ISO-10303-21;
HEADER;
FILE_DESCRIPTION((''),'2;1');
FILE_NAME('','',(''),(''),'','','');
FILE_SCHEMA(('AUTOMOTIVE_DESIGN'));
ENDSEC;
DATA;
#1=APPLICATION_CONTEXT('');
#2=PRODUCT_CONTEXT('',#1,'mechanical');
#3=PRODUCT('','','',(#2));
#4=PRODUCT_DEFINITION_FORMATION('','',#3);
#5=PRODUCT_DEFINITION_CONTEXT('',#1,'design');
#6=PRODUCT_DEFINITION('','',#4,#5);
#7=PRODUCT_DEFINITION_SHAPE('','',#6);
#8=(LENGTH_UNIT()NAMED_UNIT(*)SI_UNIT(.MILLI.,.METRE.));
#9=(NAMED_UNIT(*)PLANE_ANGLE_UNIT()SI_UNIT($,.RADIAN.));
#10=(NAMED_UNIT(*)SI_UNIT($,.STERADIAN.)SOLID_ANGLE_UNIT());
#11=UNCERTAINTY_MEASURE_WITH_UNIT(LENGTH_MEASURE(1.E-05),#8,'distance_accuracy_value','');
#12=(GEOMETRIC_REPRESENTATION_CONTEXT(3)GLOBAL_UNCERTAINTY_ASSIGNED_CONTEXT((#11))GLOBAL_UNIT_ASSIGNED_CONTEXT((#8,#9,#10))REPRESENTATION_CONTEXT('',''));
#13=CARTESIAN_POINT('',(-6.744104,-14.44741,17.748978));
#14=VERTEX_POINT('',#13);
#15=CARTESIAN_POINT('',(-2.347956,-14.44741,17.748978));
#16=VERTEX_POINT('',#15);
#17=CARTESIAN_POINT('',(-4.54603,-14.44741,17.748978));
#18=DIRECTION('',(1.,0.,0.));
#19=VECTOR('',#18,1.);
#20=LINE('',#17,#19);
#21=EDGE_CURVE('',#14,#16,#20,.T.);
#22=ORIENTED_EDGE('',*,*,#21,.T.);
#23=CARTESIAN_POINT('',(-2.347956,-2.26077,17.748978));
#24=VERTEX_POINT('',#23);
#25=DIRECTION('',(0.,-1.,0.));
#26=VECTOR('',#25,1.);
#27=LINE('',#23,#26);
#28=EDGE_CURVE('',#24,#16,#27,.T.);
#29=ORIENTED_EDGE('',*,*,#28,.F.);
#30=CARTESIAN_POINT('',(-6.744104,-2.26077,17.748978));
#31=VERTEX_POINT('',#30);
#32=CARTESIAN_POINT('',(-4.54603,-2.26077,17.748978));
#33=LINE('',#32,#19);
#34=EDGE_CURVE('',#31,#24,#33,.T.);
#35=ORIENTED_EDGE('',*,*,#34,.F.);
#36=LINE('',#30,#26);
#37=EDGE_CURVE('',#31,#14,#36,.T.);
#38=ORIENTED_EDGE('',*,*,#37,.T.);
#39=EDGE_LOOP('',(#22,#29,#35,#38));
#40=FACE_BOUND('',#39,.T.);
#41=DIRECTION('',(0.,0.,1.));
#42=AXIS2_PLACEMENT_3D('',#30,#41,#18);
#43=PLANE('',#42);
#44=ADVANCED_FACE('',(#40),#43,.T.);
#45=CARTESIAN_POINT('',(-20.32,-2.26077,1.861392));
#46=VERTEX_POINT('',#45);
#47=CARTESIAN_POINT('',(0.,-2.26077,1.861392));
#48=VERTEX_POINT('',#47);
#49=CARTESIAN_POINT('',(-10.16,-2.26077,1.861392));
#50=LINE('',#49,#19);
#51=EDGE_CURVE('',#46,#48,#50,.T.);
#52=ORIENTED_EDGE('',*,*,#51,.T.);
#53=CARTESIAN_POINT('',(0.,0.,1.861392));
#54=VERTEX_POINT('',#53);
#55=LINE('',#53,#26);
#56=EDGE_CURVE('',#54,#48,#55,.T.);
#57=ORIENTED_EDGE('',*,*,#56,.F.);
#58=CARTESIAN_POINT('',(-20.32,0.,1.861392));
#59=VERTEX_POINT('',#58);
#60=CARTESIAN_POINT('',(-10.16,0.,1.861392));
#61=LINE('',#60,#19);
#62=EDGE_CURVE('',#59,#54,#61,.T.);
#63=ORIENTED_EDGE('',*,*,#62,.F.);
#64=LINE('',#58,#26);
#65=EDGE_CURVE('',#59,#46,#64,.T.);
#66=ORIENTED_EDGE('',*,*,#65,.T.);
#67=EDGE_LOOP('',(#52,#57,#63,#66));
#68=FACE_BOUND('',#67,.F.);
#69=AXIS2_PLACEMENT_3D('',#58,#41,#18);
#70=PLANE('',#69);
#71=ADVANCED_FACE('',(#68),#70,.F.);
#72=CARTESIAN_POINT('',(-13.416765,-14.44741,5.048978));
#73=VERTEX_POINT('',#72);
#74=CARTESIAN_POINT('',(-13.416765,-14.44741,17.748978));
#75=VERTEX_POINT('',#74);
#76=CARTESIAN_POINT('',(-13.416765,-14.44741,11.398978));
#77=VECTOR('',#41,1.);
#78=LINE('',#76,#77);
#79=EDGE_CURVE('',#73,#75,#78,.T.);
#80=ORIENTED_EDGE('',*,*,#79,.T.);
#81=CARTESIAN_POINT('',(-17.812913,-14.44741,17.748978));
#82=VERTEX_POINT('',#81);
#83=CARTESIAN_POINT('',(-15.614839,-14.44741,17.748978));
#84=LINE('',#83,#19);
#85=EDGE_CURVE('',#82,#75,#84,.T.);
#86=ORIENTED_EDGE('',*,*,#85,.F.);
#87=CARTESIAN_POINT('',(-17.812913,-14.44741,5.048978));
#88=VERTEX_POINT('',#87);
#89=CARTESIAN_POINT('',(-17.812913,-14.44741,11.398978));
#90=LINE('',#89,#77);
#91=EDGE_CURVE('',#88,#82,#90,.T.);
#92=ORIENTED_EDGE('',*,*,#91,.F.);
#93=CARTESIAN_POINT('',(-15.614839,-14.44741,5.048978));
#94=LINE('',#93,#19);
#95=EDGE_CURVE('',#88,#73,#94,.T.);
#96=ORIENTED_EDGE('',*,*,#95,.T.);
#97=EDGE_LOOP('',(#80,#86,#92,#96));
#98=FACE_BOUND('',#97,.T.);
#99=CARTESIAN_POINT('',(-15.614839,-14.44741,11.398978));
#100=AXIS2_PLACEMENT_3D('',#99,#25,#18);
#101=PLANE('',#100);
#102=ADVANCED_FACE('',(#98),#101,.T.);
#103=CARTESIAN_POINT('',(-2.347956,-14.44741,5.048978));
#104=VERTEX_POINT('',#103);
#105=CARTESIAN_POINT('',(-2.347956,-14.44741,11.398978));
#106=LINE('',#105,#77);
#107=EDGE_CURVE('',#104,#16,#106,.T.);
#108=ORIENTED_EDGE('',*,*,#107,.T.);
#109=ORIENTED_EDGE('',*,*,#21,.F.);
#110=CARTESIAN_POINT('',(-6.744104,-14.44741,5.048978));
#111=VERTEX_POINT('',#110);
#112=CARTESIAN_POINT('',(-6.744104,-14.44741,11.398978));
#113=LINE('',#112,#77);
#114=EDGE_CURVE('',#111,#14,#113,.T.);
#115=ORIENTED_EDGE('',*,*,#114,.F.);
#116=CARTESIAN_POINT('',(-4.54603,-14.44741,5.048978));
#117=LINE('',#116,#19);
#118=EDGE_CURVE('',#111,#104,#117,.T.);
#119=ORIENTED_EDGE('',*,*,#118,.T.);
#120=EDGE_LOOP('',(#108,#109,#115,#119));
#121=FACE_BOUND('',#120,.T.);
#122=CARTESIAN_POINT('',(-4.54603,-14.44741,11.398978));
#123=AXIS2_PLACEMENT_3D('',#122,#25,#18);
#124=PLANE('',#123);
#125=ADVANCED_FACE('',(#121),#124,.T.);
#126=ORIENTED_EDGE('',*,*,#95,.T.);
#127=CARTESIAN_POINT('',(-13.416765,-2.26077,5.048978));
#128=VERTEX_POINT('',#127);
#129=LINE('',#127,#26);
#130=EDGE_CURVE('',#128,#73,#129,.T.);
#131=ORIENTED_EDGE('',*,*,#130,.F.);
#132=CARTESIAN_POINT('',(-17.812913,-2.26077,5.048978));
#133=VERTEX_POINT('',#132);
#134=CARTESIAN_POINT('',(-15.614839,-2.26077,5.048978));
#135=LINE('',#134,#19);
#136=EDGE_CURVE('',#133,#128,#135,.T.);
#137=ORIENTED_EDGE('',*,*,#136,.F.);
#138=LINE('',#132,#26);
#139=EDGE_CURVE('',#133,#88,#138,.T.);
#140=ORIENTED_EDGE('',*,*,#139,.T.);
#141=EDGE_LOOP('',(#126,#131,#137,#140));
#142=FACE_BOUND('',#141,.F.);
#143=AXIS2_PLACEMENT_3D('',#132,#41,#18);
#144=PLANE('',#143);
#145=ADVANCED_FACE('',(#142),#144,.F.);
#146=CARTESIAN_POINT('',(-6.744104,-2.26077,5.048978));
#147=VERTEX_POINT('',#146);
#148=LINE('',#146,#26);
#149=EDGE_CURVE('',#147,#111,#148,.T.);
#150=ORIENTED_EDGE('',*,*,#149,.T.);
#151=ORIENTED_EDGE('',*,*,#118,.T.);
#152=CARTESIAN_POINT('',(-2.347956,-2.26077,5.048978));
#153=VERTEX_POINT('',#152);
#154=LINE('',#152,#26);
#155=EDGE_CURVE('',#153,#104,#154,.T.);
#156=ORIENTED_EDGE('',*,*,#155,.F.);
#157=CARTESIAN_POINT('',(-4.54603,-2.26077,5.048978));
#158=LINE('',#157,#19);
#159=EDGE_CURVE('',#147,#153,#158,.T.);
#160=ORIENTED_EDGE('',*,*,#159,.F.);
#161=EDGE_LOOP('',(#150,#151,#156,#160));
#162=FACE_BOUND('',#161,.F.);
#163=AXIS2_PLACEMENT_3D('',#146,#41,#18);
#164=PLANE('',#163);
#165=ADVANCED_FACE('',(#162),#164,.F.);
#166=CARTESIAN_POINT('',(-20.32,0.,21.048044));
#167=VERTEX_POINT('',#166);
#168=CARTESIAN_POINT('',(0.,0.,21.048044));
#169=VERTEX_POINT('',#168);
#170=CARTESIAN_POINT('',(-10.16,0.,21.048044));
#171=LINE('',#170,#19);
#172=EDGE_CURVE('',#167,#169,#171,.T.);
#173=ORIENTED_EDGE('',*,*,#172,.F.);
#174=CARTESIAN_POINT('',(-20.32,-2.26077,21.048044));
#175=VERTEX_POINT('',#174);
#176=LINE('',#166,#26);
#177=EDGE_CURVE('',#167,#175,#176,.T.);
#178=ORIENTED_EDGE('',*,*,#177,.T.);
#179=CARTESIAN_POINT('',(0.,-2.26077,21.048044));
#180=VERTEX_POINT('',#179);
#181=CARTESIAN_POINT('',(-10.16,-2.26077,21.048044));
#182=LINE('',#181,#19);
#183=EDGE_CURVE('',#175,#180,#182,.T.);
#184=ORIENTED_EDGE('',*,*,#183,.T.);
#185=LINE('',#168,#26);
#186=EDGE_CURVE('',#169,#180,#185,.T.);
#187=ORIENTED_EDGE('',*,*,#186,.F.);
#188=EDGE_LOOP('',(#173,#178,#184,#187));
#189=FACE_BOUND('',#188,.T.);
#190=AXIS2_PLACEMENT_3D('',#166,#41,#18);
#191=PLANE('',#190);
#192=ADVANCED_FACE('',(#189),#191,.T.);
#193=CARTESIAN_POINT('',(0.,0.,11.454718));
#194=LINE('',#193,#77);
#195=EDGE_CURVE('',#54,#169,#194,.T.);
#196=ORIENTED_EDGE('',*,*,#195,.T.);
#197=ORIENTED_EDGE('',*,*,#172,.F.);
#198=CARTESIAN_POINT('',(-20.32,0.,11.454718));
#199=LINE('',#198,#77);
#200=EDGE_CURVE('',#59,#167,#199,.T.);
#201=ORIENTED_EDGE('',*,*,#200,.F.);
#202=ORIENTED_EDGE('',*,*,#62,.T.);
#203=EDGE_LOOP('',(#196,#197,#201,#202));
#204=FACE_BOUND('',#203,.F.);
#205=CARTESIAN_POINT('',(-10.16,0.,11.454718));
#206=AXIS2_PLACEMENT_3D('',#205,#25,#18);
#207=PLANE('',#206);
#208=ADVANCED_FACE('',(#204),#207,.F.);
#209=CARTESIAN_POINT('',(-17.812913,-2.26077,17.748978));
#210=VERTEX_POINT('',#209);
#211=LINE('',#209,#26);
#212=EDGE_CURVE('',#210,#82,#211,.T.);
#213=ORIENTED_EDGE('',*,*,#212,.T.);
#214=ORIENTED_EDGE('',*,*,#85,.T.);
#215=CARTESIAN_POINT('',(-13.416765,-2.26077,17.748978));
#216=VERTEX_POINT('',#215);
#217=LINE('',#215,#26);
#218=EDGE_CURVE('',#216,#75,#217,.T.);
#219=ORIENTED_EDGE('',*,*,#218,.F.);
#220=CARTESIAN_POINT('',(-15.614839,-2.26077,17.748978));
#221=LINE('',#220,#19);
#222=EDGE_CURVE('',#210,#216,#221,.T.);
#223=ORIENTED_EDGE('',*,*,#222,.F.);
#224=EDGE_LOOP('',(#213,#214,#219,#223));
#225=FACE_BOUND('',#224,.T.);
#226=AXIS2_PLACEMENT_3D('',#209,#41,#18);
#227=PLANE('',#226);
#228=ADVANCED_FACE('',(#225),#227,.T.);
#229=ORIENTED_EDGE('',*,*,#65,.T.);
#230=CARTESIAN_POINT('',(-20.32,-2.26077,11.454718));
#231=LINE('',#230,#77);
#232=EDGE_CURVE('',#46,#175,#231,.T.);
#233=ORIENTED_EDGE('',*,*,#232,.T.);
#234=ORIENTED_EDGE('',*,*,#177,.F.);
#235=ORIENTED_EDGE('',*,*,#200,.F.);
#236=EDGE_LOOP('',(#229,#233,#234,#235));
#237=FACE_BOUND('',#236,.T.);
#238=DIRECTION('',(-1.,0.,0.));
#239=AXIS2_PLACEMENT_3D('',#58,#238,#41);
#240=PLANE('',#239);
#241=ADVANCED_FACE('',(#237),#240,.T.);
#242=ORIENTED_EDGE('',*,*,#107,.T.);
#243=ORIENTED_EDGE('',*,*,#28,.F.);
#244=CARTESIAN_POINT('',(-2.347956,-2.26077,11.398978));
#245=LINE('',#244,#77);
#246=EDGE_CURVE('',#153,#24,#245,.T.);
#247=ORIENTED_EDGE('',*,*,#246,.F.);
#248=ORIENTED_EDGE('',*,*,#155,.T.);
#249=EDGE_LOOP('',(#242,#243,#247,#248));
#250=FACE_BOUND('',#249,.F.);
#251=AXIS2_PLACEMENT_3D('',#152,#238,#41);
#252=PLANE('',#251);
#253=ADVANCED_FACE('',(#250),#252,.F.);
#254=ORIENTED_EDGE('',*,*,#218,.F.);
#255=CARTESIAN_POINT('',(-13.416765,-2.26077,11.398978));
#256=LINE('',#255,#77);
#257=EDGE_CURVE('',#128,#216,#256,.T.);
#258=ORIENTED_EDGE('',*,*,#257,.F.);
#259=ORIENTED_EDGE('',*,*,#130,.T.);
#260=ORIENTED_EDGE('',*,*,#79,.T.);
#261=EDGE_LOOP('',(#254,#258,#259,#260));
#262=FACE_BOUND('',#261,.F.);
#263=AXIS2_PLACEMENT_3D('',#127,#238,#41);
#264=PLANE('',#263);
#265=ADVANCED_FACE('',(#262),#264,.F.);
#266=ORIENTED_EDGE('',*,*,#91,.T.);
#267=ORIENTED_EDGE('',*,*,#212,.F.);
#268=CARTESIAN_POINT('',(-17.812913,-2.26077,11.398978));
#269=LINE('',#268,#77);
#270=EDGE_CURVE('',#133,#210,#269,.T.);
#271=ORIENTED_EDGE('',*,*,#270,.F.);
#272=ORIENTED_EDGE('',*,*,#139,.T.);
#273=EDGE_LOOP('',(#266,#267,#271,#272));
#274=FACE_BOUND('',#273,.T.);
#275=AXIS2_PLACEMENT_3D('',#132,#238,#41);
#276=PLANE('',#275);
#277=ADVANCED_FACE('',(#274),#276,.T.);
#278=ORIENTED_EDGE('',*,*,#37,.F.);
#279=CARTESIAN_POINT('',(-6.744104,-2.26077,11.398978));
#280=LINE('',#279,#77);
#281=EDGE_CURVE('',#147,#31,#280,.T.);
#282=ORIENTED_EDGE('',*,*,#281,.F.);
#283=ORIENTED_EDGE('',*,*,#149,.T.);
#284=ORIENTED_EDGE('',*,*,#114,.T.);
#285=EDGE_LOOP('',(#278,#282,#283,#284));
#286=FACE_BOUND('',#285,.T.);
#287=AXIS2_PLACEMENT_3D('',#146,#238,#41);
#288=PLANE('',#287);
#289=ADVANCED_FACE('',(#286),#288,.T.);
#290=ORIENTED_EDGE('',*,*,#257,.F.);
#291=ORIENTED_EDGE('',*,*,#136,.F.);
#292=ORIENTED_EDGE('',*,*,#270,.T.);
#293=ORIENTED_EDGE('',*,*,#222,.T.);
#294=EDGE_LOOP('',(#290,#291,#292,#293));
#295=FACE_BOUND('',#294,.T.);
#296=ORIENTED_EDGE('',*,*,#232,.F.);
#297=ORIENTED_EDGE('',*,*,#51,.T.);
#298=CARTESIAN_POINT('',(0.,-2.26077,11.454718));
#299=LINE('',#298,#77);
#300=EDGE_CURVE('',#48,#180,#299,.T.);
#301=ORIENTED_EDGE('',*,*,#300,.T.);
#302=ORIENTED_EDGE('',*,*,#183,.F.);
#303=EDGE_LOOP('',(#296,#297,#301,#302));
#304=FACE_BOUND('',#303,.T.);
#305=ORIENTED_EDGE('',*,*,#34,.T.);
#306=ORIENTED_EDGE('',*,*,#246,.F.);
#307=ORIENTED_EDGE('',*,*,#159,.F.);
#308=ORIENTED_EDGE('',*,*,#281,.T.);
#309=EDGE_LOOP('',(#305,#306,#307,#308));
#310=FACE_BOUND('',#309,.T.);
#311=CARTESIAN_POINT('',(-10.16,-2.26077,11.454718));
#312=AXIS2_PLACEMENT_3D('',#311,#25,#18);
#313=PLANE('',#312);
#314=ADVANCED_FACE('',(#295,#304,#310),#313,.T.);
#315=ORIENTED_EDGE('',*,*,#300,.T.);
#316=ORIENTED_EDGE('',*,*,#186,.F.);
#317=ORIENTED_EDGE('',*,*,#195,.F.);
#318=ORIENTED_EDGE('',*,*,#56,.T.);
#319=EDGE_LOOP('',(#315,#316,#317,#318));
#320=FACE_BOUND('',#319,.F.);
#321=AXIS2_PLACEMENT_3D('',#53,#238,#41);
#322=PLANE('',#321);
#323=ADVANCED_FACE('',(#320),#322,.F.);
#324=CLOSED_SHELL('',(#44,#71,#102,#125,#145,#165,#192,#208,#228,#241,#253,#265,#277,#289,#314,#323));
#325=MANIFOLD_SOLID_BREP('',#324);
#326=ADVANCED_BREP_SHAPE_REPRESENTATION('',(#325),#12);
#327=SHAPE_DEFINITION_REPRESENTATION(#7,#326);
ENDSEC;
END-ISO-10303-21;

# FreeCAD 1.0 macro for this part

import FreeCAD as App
import Part
import Sketcher
Q = App.Units.Quantity


def add_polygon(sketch, points):
    """Adds a closed chain of lines whose ends are joined by coincident constraints."""
    first, n = sketch.GeometryCount, len(points)
    for a, b in zip(points, points[1:] + points[:1]):
        sketch.addGeometry(Part.LineSegment(App.Vector(*a, 0), App.Vector(*b, 0)), False)
    for i in range(n):
        sketch.addConstraint(Sketcher.Constraint("Coincident", first + i, 2, first + (i + 1) % n, 1))

doc = App.newDocument("Part")
body = doc.addObject("PartDesign::Body", "Body")

# Sketch on XZ plane
sketch1 = body.newObject("Sketcher::SketchObject", "Sketch")
sketch1.AttachmentSupport = (doc.getObject("XZ_Plane"), [""])
sketch1.MapMode = "FlatFace"
add_polygon(sketch1, [(-20, 21), (-20, 2), (0, 2), (0, 21)])  # lines 0-3
sketch1.addConstraint([
    Sketcher.Constraint("Vertical", 0),
    Sketcher.Constraint("Horizontal", 1),
    Sketcher.Constraint("Vertical", 2),
    Sketcher.Constraint("Horizontal", 3),
    Sketcher.Constraint("PointOnObject", 1, 2, -2),
    Sketcher.Constraint("DistanceX", 1, 1, 1, 2, Q("0.8 in")),
    Sketcher.Constraint("DistanceY", 0, 2, 0, 1, Q("19.186653 mm")),
    Sketcher.Constraint("DistanceY", -1, 1, 0, 2, Q("1.861392 mm")),
])
pad1 = body.newObject("PartDesign::Pad", "Pad")
pad1.Profile = sketch1
pad1.Length = 2.26077

# Sketch on XZ plane
sketch2 = body.newObject("Sketcher::SketchObject", "Sketch001")
sketch2.AttachmentSupport = (doc.getObject("XZ_Plane"), [""])
sketch2.MapMode = "FlatFace"
sketch2.AttachmentOffset = App.Placement(App.Vector(0, 0, 2.26077), App.Rotation())
add_polygon(sketch2, [(-17.8, 17.7), (-17.8, 5), (-13.4, 5), (-13.4, 17.7)])  # lines 0-3
add_polygon(sketch2, [(-6.7, 17.7), (-6.7, 5), (-2.3, 5), (-2.3, 17.7)])  # lines 4-7
sketch2.addConstraint([
    Sketcher.Constraint("Vertical", 0),
    Sketcher.Constraint("Horizontal", 1),
    Sketcher.Constraint("Vertical", 2),
    Sketcher.Constraint("Horizontal", 3),
    Sketcher.Constraint("Vertical", 4),
    Sketcher.Constraint("Horizontal", 5),
    Sketcher.Constraint("Vertical", 6),
    Sketcher.Constraint("Horizontal", 7),
    Sketcher.Constraint("Horizontal", 1, 2, 4, 2),
    Sketcher.Constraint("Horizontal", 3, 2, 6, 2),
    Sketcher.Constraint("Equal", 3, 5),
    Sketcher.Constraint("DistanceY", 0, 2, 0, 1, Q("0.5 in")),
    Sketcher.Constraint("DistanceX", 1, 1, 1, 2, Q("4.396148 mm")),
    Sketcher.Constraint("DistanceY", -1, 1, 2, 2, Q("17.748978 mm")),
    Sketcher.Constraint("DistanceX", 1, 2, 4, 2, Q("6.672661 mm")),
    Sketcher.Constraint("DistanceX", 0, 2, -1, 1, Q("17.812913 mm")),
])
pad2 = body.newObject("PartDesign::Pad", "Pad001")
pad2.Profile = sketch2
pad2.Length = 12.18664

doc.recompute()
